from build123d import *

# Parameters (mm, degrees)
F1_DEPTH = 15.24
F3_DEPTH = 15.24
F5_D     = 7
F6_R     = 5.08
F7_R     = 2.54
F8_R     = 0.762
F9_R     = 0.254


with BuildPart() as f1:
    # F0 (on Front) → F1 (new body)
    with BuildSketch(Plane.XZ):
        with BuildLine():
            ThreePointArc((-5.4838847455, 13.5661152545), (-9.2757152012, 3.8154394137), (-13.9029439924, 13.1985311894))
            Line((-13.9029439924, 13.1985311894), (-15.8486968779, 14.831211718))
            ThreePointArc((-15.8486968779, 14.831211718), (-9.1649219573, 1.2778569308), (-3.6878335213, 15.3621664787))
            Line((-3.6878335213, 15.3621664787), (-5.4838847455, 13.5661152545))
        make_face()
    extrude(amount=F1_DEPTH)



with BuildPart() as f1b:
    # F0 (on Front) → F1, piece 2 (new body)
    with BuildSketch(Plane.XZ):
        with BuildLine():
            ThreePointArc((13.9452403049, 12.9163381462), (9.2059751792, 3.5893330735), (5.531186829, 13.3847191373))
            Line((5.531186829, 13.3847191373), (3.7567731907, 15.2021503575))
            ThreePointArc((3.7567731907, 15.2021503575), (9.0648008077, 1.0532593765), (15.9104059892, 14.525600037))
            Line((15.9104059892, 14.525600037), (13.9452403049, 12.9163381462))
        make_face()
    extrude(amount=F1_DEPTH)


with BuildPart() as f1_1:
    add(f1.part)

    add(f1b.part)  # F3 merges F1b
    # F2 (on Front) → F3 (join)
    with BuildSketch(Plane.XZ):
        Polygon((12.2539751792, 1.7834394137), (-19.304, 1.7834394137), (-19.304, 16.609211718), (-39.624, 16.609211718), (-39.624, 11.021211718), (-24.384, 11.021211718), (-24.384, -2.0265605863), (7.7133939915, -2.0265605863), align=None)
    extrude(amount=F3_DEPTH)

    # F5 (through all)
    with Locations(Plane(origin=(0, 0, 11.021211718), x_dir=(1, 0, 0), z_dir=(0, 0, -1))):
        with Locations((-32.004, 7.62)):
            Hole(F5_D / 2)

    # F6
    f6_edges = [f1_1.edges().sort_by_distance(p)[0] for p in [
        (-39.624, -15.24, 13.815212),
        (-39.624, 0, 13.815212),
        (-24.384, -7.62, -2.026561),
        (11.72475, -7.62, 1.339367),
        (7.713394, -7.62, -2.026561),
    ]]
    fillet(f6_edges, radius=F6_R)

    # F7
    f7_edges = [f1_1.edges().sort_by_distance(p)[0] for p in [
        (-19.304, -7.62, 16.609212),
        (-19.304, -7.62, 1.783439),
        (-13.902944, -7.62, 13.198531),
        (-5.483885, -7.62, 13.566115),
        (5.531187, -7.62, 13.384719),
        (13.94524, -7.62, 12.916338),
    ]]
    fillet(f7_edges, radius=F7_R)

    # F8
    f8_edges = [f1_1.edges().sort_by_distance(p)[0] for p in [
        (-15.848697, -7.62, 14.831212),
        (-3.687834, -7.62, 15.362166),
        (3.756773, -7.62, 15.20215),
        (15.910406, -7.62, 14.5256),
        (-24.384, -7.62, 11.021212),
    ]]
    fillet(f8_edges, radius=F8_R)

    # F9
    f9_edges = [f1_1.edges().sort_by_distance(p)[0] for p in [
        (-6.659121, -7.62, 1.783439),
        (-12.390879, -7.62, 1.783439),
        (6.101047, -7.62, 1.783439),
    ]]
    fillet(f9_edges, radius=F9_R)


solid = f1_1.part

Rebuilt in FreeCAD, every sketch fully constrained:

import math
import FreeCAD as App
import Part
import Sketcher
from FreeCAD import Vector
Q = App.Units.Quantity


def edges_at(feature, points):
    """Names of the edges that pass closest to the given points."""
    edges = feature.Shape.Edges
    near = lambda p: min(range(len(edges)), key=lambda i: edges[i].distToShape(Part.Vertex(*p))[0])
    return sorted({f"Edge{near(p) + 1}" for p in points})

doc = App.newDocument("Part")
body = doc.addObject("PartDesign::Body", "Body")

# Sketch on XZ plane
sketch1 = body.newObject("Sketcher::SketchObject", "Sketch")
sketch1.AttachmentSupport = (doc.getObject("XZ_Plane"), [""])
sketch1.MapMode = "FlatFace"
sketch1.addGeometry([
    Part.ArcOfCircle(Part.Circle(Vector(-9.525, 9.525, 0), Vector(0, 0, 1), 5.715), math.radians(140), math.radians(405)),
    Part.LineSegment(Vector(-13.902944, 13.198531, 0), Vector(-15.848697, 14.831212, 0)),
    Part.ArcOfCircle(Part.Circle(Vector(-9.525, 9.525, 0), Vector(0, 0, 1), 8.255), math.radians(140), math.radians(405)),
    Part.LineSegment(Vector(-3.687834, 15.362166, 0), Vector(-5.483885, 13.566115, 0)),
], False)
sketch1.addConstraint([
    Sketcher.Constraint("Coincident", 0, 1, 1, 1),
    Sketcher.Constraint("Coincident", 1, 2, 2, 1),
    Sketcher.Constraint("Coincident", 2, 2, 3, 1),
    Sketcher.Constraint("Coincident", 3, 2, 0, 2),
    Sketcher.Constraint("Coincident", 2, 3, 0, 3),
    Sketcher.Constraint("Angle", 1, Q("140 deg")),
    Sketcher.Constraint("Angle", 3, Q("-135 deg")),
    Sketcher.Constraint("Radius", 0, Q("0.225 in")),
    Sketcher.Constraint("Radius", 2, Q("0.325 in")),
    Sketcher.Constraint("DistanceX", 0, 3, -1, 1, Q("0.375 in")),
    Sketcher.Constraint("DistanceY", -1, 1, 0, 3, Q("0.375 in")),
    Sketcher.Constraint("DistanceY", -1, 1, 0, 1, 13.198531),
    Sketcher.Constraint("DistanceX", 0, 1, 2, 2, 10.21511),
])
pad1 = body.newObject("PartDesign::Pad", "Pad")
pad1.Profile = sketch1
pad1.Length = Q("0.6 in")
body2 = doc.addObject("PartDesign::Body", "Body001")

# Sketch on XZ plane
sketch2 = body2.newObject("Sketcher::SketchObject", "Sketch001")
sketch2.AttachmentSupport = (doc.getObject("XZ_Plane001"), [""])
sketch2.MapMode = "FlatFace"
sketch2.addGeometry([
    Part.ArcOfCircle(Part.Circle(Vector(9.523618, 9.295499, 0), Vector(0, 0, 1), 5.715), math.radians(134.313832), math.radians(399.313832)),
    Part.LineSegment(Vector(5.531187, 13.384719, 0), Vector(3.756773, 15.20215, 0)),
    Part.ArcOfCircle(Part.Circle(Vector(9.523618, 9.295499, 0), Vector(0, 0, 1), 8.255), math.radians(134.313832), math.radians(399.313832)),
    Part.LineSegment(Vector(15.910406, 14.5256, 0), Vector(13.94524, 12.916338, 0)),
], False)
sketch2.addConstraint([
    Sketcher.Constraint("Coincident", 0, 1, 1, 1),
    Sketcher.Constraint("Coincident", 1, 2, 2, 1),
    Sketcher.Constraint("Coincident", 2, 2, 3, 1),
    Sketcher.Constraint("Coincident", 3, 2, 0, 2),
    Sketcher.Constraint("Coincident", 2, 3, 0, 3),
    Sketcher.Constraint("Radius", 0, Q("0.225 in")),
    Sketcher.Constraint("Radius", 2, Q("0.325 in")),
    Sketcher.Constraint("DistanceY", -1, 1, 0, 3, 9.295499),
    Sketcher.Constraint("DistanceY", -1, 1, 2, 2, 14.5256),
    Sketcher.Constraint("DistanceY", -1, 1, 0, 1, 13.384719),
    Sketcher.Constraint("DistanceY", -1, 1, 1, 2, 15.20215),
    Sketcher.Constraint("DistanceX", -1, 1, 3, 2, 13.94524),
    Sketcher.Constraint("DistanceY", -1, 1, 3, 2, 12.916338),
])
pad2 = body2.newObject("PartDesign::Pad", "Pad001")
pad2.Profile = sketch2
pad2.Length = Q("0.6 in")
body.AllowCompound = True
doc.recompute()

boolean = body.newObject("PartDesign::Boolean", "Boolean")
boolean.Type = "Fuse"
boolean.addObjects([body2])

# Sketch on XZ plane
sketch3 = body.newObject("Sketcher::SketchObject", "Sketch002")
sketch3.AttachmentSupport = (doc.getObject("XZ_Plane"), [""])
sketch3.MapMode = "FlatFace"
sketch3.addGeometry([
    Part.LineSegment(Vector(12.253975, 1.783439, 0), Vector(-19.304, 1.783439, 0)),  # 0
    Part.LineSegment(Vector(-19.304, 1.783439, 0), Vector(-19.304, 16.609212, 0)),  # 1
    Part.LineSegment(Vector(-19.304, 16.609212, 0), Vector(-39.624, 16.609212, 0)),  # 2
    Part.LineSegment(Vector(-39.624, 16.609212, 0), Vector(-39.624, 11.021212, 0)),  # 3
    Part.LineSegment(Vector(-39.624, 11.021212, 0), Vector(-24.384, 11.021212, 0)),  # 4
    Part.LineSegment(Vector(-24.384, 11.021212, 0), Vector(-24.384, -2.026561, 0)),  # 5
    Part.LineSegment(Vector(-24.384, -2.026561, 0), Vector(7.713394, -2.026561, 0)),  # 6
    Part.LineSegment(Vector(7.713394, -2.026561, 0), Vector(12.253975, 1.783439, 0)),  # 7
], False)
sketch3.addConstraint([
    Sketcher.Constraint("Coincident", 0, 2, 1, 1),
    Sketcher.Constraint("Coincident", 1, 2, 2, 1),
    Sketcher.Constraint("Coincident", 2, 2, 3, 1),
    Sketcher.Constraint("Coincident", 3, 2, 4, 1),
    Sketcher.Constraint("Coincident", 4, 2, 5, 1),
    Sketcher.Constraint("Coincident", 5, 2, 6, 1),
    Sketcher.Constraint("Coincident", 6, 2, 7, 1),
    Sketcher.Constraint("Coincident", 7, 2, 0, 1),
    Sketcher.Constraint("Horizontal", 0),
    Sketcher.Constraint("Vertical", 1),
    Sketcher.Constraint("Horizontal", 2),
    Sketcher.Constraint("Vertical", 3),
    Sketcher.Constraint("Horizontal", 4),
    Sketcher.Constraint("Vertical", 5),
    Sketcher.Constraint("Horizontal", 6),
    Sketcher.Constraint("DistanceX", 2, 2, 2, 1, Q("0.8 in")),
    Sketcher.Constraint("DistanceX", 4, 1, 4, 2, Q("0.6 in")),
    Sketcher.Constraint("Angle", 7, Q("40 deg")),
    Sketcher.Constraint("DistanceY", 3, 2, 3, 1, Q("0.22 in")),
    Sketcher.Constraint("DistanceX", 0, 2, -1, 1, Q("0.76 in")),
    Sketcher.Constraint("DistanceY", 5, 2, 0, 2, Q("0.15 in")),
    Sketcher.Constraint("DistanceX", 0, 2, 0, 1, 31.557975),
    Sketcher.Constraint("DistanceY", 1, 1, 1, 2, 14.825772),
    Sketcher.Constraint("DistanceY", -1, 1, 0, 2, 1.783439),
])
pad3 = body.newObject("PartDesign::Pad", "Pad002")
pad3.Profile = sketch3
pad3.Length = Q("0.6 in")

# Sketch on XY plane
sketch4 = body.newObject("Sketcher::SketchObject", "Sketch003")
sketch4.AttachmentSupport = (doc.getObject("XY_Plane"), [""])
sketch4.MapMode = "FlatFace"
sketch4.AttachmentOffset = App.Placement(Vector(0, 0, 11.021212), App.Rotation())
sketch4.addGeometry(Part.Circle(Vector(-32.004, -7.62, 0), Vector(0, 0, 1), 3.5), False)
sketch4.addConstraint([
    Sketcher.Constraint("DistanceY", 0, 3, -1, 1, Q("0.3 in")),
    Sketcher.Constraint("Diameter", 0, 7.0),
    Sketcher.Constraint("DistanceX", 0, 3, -1, 1, Q("1.26 in")),
])
doc.recompute()
hole = body.newObject("PartDesign::Hole", "Hole")
hole.Profile = sketch4
hole.ThreadType = "None"
hole.Diameter = 7
hole.DepthType = "ThroughAll"
hole.Reversed = True
doc.recompute()

fillet = body.newObject("PartDesign::Fillet", "Fillet")
fillet.Base = (hole, edges_at(hole, [
    (-39.624, -15.24, 13.815),
    (-39.624, 0, 13.815),
    (-24.384, -7.62, -2.027),
    (11.725, -7.62, 1.339),
    (7.713, -7.62, -2.027),
]))
fillet.Radius = Q("0.2 in")
doc.recompute()

fillet2 = body.newObject("PartDesign::Fillet", "Fillet001")
fillet2.Base = (fillet, edges_at(fillet, [
    (-19.304, -7.62, 16.609),
    (-19.304, -7.62, 1.783),
    (-13.903, -7.62, 13.199),
    (-5.484, -7.62, 13.566),
    (5.531, -7.62, 13.385),
    (13.945, -7.62, 12.916),
]))
fillet2.Radius = Q("0.1 in")
doc.recompute()

fillet3 = body.newObject("PartDesign::Fillet", "Fillet002")
fillet3.Base = (fillet2, edges_at(fillet2, [
    (-15.849, -7.62, 14.831),
    (-3.688, -7.62, 15.362),
    (3.757, -7.62, 15.202),
    (15.91, -7.62, 14.526),
    (-24.384, -7.62, 11.021),
]))
fillet3.Radius = Q("0.03 in")
doc.recompute()

fillet4 = body.newObject("PartDesign::Fillet", "Fillet003")
fillet4.Base = (fillet3, edges_at(fillet3, [(-6.659, -7.62, 1.783), (-12.391, -7.62, 1.783), (6.101, -7.62, 1.783)]))
fillet4.Radius = Q("0.01 in")

doc.recompute()
